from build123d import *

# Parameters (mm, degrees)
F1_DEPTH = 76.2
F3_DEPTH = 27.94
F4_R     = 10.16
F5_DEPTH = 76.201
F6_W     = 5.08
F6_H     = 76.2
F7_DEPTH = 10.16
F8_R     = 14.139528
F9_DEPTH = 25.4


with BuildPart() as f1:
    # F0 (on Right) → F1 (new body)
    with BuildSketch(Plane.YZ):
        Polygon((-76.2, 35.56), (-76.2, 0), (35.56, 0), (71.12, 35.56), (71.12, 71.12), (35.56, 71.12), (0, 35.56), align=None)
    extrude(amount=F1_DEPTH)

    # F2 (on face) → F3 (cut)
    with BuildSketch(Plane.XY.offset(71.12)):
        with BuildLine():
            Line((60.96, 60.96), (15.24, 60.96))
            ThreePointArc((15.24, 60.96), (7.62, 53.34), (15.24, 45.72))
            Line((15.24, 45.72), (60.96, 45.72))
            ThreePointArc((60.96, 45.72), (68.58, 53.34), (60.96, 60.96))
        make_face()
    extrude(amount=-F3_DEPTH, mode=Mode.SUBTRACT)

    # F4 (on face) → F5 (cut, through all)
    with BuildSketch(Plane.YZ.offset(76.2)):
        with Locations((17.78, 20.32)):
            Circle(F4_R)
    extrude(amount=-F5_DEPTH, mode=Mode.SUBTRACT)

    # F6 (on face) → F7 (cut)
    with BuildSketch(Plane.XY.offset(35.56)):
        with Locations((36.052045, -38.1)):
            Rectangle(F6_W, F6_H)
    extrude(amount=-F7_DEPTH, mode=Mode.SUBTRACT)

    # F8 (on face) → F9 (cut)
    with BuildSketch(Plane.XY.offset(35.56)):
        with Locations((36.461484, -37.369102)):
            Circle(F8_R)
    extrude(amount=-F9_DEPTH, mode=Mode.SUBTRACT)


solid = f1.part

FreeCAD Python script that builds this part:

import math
import FreeCAD as App
import Part
import Sketcher

V = App.Vector
Q = App.Units.Quantity


def add_polygon(sketch, points):
    """Adds a closed chain of lines whose ends are joined by coincident constraints."""
    first, n = sketch.GeometryCount, len(points)
    for a, b in zip(points, points[1:] + points[:1]):
        sketch.addGeometry(Part.LineSegment(App.Vector(*a, 0), App.Vector(*b, 0)), False)
    for i in range(n):
        sketch.addConstraint(Sketcher.Constraint("Coincident", first + i, 2, first + (i + 1) % n, 1))

doc = App.newDocument("Part")
body = doc.addObject("PartDesign::Body", "Body")

sketch1 = body.newObject("Sketcher::SketchObject", "Sketch")
sketch1.AttachmentSupport = (doc.getObject("YZ_Plane"), [""])
sketch1.MapMode = "FlatFace"
add_polygon(sketch1, [(-76, 36), (-76, 0), (36, 0), (71, 36), (71, 71), (36, 71), (0, 36)])
sketch1.addConstraint([
    Sketcher.Constraint("Vertical", 0),
    Sketcher.Constraint("Horizontal", 1),
    Sketcher.Constraint("Vertical", 3),
    Sketcher.Constraint("Horizontal", 4),
    Sketcher.Constraint("Horizontal", 6),
    Sketcher.Constraint("PointOnObject", 0, 2, -1),
    Sketcher.Constraint("PointOnObject", 5, 2, -2),
    Sketcher.Constraint("Parallel", 2, 5),
    Sketcher.Constraint("Horizontal", 2, 2, 5, 2),
    Sketcher.Constraint("Vertical", 1, 2, 4, 2),
    Sketcher.Constraint("Equal", 4, 0),
    Sketcher.Constraint("Equal", 0, 3),
    Sketcher.Constraint("DistanceX", 6, 2, 6, 1, Q("3 in")),
    Sketcher.Constraint("DistanceX", 1, 1, 1, 2, Q("4.4 in")),
])
pad1 = body.newObject("PartDesign::Pad", "Pad")
pad1.Profile = sketch1
pad1.Length = Q("3 in")

sketch2 = body.newObject("Sketcher::SketchObject", "Sketch001")
sketch2.AttachmentSupport = (doc.getObject("XY_Plane"), [""])
sketch2.MapMode = "FlatFace"
sketch2.AttachmentOffset = App.Placement(V(0, 0, 2.8 * 25.4), App.Rotation())
sketch2.addGeometry([
    Part.LineSegment(V(61, 61, 0), V(15, 61, 0)),
    Part.ArcOfCircle(Part.Circle(V(15, 53, 0), V(0, 0, 1), 8), math.radians(90), math.radians(270)),
    Part.LineSegment(V(15, 46, 0), V(61, 46, 0)),
    Part.ArcOfCircle(Part.Circle(V(61, 53, 0), V(0, 0, 1), 8), math.radians(-90), math.radians(90)),
], False)
sketch2.addConstraint([
    Sketcher.Constraint("Tangent", 0, 2, 1, 1),
    Sketcher.Constraint("Tangent", 1, 2, 2, 1),
    Sketcher.Constraint("Tangent", 2, 2, 3, 1),
    Sketcher.Constraint("Tangent", 3, 2, 0, 1),
    Sketcher.Constraint("Horizontal", 0),
    Sketcher.Constraint("Horizontal", 2),
    Sketcher.Constraint("Radius", 1, Q("0.3 in")),
    Sketcher.Constraint("DistanceX", 0, 2, 0, 1, Q("1.8 in")),
    Sketcher.Constraint("DistanceX", -1, 1, 1, 3, Q("0.6 in")),
    Sketcher.Constraint("DistanceY", -1, 1, 1, 3, Q("2.1 in")),
])
pocket1 = body.newObject("PartDesign::Pocket", "Pocket")
pocket1.Profile = sketch2
pocket1.Length = Q("1.1 in")

sketch3 = body.newObject("Sketcher::SketchObject", "Sketch002")
sketch3.AttachmentSupport = (doc.getObject("YZ_Plane"), [""])
sketch3.MapMode = "FlatFace"
sketch3.AttachmentOffset = App.Placement(V(0, 0, 3 * 25.4), App.Rotation())
sketch3.addGeometry(Part.Circle(V(18, 20, 0), V(0, 0, 1), 10), False)
sketch3.addConstraint([
    Sketcher.Constraint("Diameter", 0, Q("0.8 in")),
    Sketcher.Constraint("DistanceX", -1, 1, 0, 3, Q("0.7 in")),
    Sketcher.Constraint("DistanceY", -1, 1, 0, 3, Q("0.8 in")),
])
pocket2 = body.newObject("PartDesign::Pocket", "Pocket001")
pocket2.Profile = sketch3
pocket2.Type = "ThroughAll"

sketch4 = body.newObject("Sketcher::SketchObject", "Sketch003")
sketch4.AttachmentSupport = (doc.getObject("XY_Plane"), [""])
sketch4.MapMode = "FlatFace"
sketch4.AttachmentOffset = App.Placement(V(0, 0, 1.4 * 25.4), App.Rotation())
add_polygon(sketch4, [(34, 0), (34, -76), (39, -76), (39, 0)])
sketch4.addConstraint([
    Sketcher.Constraint("Vertical", 0),
    Sketcher.Constraint("Horizontal", 1),
    Sketcher.Constraint("Vertical", 2),
    Sketcher.Constraint("Horizontal", 3),
    Sketcher.Constraint("PointOnObject", 2, 2, -1),
    Sketcher.Constraint("DistanceY", 0, 2, 0, 1, Q("3 in")),
    Sketcher.Constraint("DistanceX", 1, 1, 1, 2, Q("0.2 in")),
    Sketcher.Constraint("DistanceX", -1, 1, 0, 2, Q("33.512045 mm")),
])
pocket3 = body.newObject("PartDesign::Pocket", "Pocket002")
pocket3.Profile = sketch4
pocket3.Length = Q("0.4 in")

sketch5 = body.newObject("Sketcher::SketchObject", "Sketch004")
sketch5.AttachmentSupport = (doc.getObject("XY_Plane"), [""])
sketch5.MapMode = "FlatFace"
sketch5.AttachmentOffset = App.Placement(V(0, 0, 1.4 * 25.4), App.Rotation())
sketch5.addGeometry(Part.Circle(V(36, -37, 0), V(0, 0, 1), 14), False)
sketch5.addConstraint([
    Sketcher.Constraint("Diameter", 0, Q("28.279056 mm")),
    Sketcher.Constraint("DistanceY", 0, 3, -1, 1, Q("37.369102 mm")),
    Sketcher.Constraint("DistanceX", -1, 1, 0, 3, Q("36.461484 mm")),
])
pocket4 = body.newObject("PartDesign::Pocket", "Pocket003")
pocket4.Profile = sketch5
pocket4.Length = Q("1 in")

doc.recompute()
